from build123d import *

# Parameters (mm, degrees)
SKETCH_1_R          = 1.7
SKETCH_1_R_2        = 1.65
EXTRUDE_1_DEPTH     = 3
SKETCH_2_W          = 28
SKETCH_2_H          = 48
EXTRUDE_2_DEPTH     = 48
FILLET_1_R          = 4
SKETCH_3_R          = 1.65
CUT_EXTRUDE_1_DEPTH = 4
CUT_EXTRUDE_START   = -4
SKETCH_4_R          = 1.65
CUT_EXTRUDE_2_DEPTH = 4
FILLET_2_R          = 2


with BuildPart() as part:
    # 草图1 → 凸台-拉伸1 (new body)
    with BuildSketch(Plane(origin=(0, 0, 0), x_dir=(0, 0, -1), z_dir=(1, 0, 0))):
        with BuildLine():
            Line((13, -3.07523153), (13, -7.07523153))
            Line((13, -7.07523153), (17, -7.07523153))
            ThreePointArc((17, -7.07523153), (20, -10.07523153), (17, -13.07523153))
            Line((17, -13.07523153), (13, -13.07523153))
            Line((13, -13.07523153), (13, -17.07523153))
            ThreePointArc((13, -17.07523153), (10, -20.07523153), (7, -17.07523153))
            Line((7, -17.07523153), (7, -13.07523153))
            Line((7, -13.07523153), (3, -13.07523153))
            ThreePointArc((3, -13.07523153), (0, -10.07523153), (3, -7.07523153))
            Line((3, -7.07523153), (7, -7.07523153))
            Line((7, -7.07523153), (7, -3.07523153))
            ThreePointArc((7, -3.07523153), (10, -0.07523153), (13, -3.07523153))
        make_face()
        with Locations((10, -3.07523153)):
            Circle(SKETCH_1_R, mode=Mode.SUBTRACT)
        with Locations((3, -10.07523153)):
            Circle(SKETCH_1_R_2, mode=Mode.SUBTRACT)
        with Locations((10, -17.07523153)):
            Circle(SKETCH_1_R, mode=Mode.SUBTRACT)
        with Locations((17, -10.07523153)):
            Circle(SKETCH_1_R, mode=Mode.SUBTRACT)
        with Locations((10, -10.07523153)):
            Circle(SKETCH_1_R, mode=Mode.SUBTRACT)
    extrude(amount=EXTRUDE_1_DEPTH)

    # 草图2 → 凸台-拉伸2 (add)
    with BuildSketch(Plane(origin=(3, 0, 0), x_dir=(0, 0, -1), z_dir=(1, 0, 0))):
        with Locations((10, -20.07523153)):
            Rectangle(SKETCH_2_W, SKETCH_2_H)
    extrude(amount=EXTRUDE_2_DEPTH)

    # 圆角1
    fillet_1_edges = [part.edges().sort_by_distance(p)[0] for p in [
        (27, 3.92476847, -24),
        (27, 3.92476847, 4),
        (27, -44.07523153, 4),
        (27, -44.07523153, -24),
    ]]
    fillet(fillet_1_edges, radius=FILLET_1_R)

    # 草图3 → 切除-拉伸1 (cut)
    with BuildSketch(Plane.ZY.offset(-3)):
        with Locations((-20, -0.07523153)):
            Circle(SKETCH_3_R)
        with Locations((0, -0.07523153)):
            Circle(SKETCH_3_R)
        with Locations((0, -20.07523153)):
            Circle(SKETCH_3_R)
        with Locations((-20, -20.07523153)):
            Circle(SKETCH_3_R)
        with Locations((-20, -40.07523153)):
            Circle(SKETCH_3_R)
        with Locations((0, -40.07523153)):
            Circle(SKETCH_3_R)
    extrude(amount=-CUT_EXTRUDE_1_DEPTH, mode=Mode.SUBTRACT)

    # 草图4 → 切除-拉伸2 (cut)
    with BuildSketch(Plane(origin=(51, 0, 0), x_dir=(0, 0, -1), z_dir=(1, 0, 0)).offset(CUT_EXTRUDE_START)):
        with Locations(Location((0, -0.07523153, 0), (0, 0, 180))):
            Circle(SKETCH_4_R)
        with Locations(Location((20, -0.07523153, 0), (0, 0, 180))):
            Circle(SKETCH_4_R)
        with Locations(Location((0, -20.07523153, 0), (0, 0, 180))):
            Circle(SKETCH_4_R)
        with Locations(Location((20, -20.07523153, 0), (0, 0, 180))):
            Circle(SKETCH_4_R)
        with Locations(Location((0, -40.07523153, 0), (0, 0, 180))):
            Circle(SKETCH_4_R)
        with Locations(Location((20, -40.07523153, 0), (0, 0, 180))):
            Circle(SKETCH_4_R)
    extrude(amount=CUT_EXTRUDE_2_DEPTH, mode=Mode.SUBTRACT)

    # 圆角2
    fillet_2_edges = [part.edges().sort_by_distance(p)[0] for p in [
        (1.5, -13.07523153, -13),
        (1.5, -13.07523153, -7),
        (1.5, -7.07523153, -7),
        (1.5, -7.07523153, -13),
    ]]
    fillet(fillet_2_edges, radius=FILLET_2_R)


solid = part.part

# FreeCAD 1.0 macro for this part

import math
import FreeCAD as App
import Part
import Sketcher


def edges_at(feature, points):
    """Names of the edges that pass closest to the given points."""
    edges = feature.Shape.Edges
    near = lambda p: min(range(len(edges)), key=lambda i: edges[i].distToShape(Part.Vertex(*p))[0])
    return sorted({f"Edge{near(p) + 1}" for p in points})

doc = App.newDocument("Part")
body = doc.addObject("PartDesign::Body", "Body")

# Sketch on YZ plane
sketch1 = doc.addObject("Sketcher::SketchObject", "Sketch")
body.addObject(sketch1)
sketch1.AttachmentSupport = (doc.YZ_Plane, [""])
sketch1.MapMode = "FlatFace"
sketch1.addGeometry(Part.LineSegment(App.Vector(-7.1, -13, 0), App.Vector(-3.1, -13, 0)), False)
sketch1.addGeometry(Part.ArcOfCircle(Part.Circle(App.Vector(-3.1, -10, 0), App.Vector(0, 0, 1), 3), math.radians(-90), math.radians(90)), False)
sketch1.addGeometry(Part.LineSegment(App.Vector(-3.1, -7, 0), App.Vector(-7.1, -7, 0)), False)
sketch1.addGeometry(Part.LineSegment(App.Vector(-7.1, -7, 0), App.Vector(-7.1, -3, 0)), False)
sketch1.addGeometry(Part.ArcOfCircle(Part.Circle(App.Vector(-10.1, -3, 0), App.Vector(0, 0, 1), 3), math.radians(0), math.radians(180)), False)
sketch1.addGeometry(Part.LineSegment(App.Vector(-13.1, -3, 0), App.Vector(-13.1, -7, 0)), False)
sketch1.addGeometry(Part.LineSegment(App.Vector(-13.1, -7, 0), App.Vector(-17.1, -7, 0)), False)
sketch1.addGeometry(Part.ArcOfCircle(Part.Circle(App.Vector(-17.1, -10, 0), App.Vector(0, 0, 1), 3), math.radians(90), math.radians(270)), False)
sketch1.addGeometry(Part.LineSegment(App.Vector(-17.1, -13, 0), App.Vector(-13.1, -13, 0)), False)
sketch1.addGeometry(Part.LineSegment(App.Vector(-13.1, -13, 0), App.Vector(-13.1, -17, 0)), False)
sketch1.addGeometry(Part.ArcOfCircle(Part.Circle(App.Vector(-10.1, -17, 0), App.Vector(0, 0, 1), 3), math.radians(180), math.radians(360)), False)
sketch1.addGeometry(Part.LineSegment(App.Vector(-7.1, -17, 0), App.Vector(-7.1, -13, 0)), False)
sketch1.addGeometry(Part.Circle(App.Vector(-17.1, -10, 0), App.Vector(0, 0, 1), 1.7), False)
sketch1.addGeometry(Part.Circle(App.Vector(-10.1, -17, 0), App.Vector(0, 0, 1), 1.7), False)
sketch1.addGeometry(Part.Circle(App.Vector(-10.1, -10, 0), App.Vector(0, 0, 1), 1.7), False)
sketch1.addGeometry(Part.Circle(App.Vector(-10.1, -3, 0), App.Vector(0, 0, 1), 1.6), False)
sketch1.addGeometry(Part.Circle(App.Vector(-3.1, -10, 0), App.Vector(0, 0, 1), 1.7), False)
sketch1.addConstraint(Sketcher.Constraint("Tangent", 0, 2, 1, 1))
sketch1.addConstraint(Sketcher.Constraint("Tangent", 1, 2, 2, 1))
sketch1.addConstraint(Sketcher.Constraint("Coincident", 2, 2, 3, 1))
sketch1.addConstraint(Sketcher.Constraint("Tangent", 3, 2, 4, 1))
sketch1.addConstraint(Sketcher.Constraint("Tangent", 4, 2, 5, 1))
sketch1.addConstraint(Sketcher.Constraint("Coincident", 5, 2, 6, 1))
sketch1.addConstraint(Sketcher.Constraint("Tangent", 6, 2, 7, 1))
sketch1.addConstraint(Sketcher.Constraint("Tangent", 7, 2, 8, 1))
sketch1.addConstraint(Sketcher.Constraint("Coincident", 8, 2, 9, 1))
sketch1.addConstraint(Sketcher.Constraint("Tangent", 9, 2, 10, 1))
sketch1.addConstraint(Sketcher.Constraint("Tangent", 10, 2, 11, 1))
sketch1.addConstraint(Sketcher.Constraint("Coincident", 11, 2, 0, 1))
sketch1.addConstraint(Sketcher.Constraint("Horizontal", 0))
sketch1.addConstraint(Sketcher.Constraint("Horizontal", 2))
sketch1.addConstraint(Sketcher.Constraint("Vertical", 3))
sketch1.addConstraint(Sketcher.Constraint("Vertical", 5))
sketch1.addConstraint(Sketcher.Constraint("Horizontal", 6))
sketch1.addConstraint(Sketcher.Constraint("Horizontal", 8))
sketch1.addConstraint(Sketcher.Constraint("Vertical", 9))
sketch1.addConstraint(Sketcher.Constraint("Vertical", 11))
sketch1.addConstraint(Sketcher.Constraint("Coincident", 12, 3, 7, 3))
sketch1.addConstraint(Sketcher.Constraint("Coincident", 13, 3, 10, 3))
sketch1.addConstraint(Sketcher.Constraint("Coincident", 15, 3, 4, 3))
sketch1.addConstraint(Sketcher.Constraint("Coincident", 16, 3, 1, 3))
sketch1.addConstraint(Sketcher.Constraint("Equal", 1, 4))
sketch1.addConstraint(Sketcher.Constraint("Equal", 4, 7))
sketch1.addConstraint(Sketcher.Constraint("Equal", 7, 10))
sketch1.addConstraint(Sketcher.Constraint("Equal", 12, 13))
sketch1.addConstraint(Sketcher.Constraint("Equal", 13, 14))
sketch1.addConstraint(Sketcher.Constraint("Equal", 14, 16))
sketch1.addConstraint(Sketcher.Constraint("Horizontal", 1, 3, 7, 3))
sketch1.addConstraint(Sketcher.Constraint("Horizontal", 12, 3, 14, 3))
sketch1.addConstraint(Sketcher.Constraint("Vertical", 4, 3, 10, 3))
sketch1.addConstraint(Sketcher.Constraint("Vertical", 13, 3, 14, 3))
sketch1.addConstraint(Sketcher.Constraint("Equal", 2, 6))
sketch1.addConstraint(Sketcher.Constraint("Equal", 8, 3))
sketch1.addConstraint(Sketcher.Constraint("Equal", 5, 9))
sketch1.addConstraint(Sketcher.Constraint("Radius", 1, 3.0))
sketch1.addConstraint(Sketcher.Constraint("Diameter", 12, 3.4))
sketch1.addConstraint(Sketcher.Constraint("Diameter", 15, 3.3))
sketch1.addConstraint(Sketcher.Constraint("DistanceX", 0, 1, 0, 2, 4.0))
sketch1.addConstraint(Sketcher.Constraint("DistanceY", 1, 3, -1, 1, 10.0))
sketch1.addConstraint(Sketcher.Constraint("DistanceX", 1, 3, -1, 1, 3.075232))
pad1 = doc.addObject("PartDesign::Pad", "Pad")
body.addObject(pad1)
pad1.Profile = sketch1
pad1.Length = 3

# Sketch on YZ plane
sketch2 = doc.addObject("Sketcher::SketchObject", "Sketch001")
body.addObject(sketch2)
sketch2.AttachmentSupport = (doc.YZ_Plane, [""])
sketch2.MapMode = "FlatFace"
sketch2.AttachmentOffset = App.Placement(App.Vector(0, 0, 3), App.Rotation())
sketch2.addGeometry(Part.LineSegment(App.Vector(4, 4, 0), App.Vector(-44, 4, 0)), False)
sketch2.addGeometry(Part.LineSegment(App.Vector(-44, 4, 0), App.Vector(-44, -24, 0)), False)
sketch2.addGeometry(Part.LineSegment(App.Vector(-44, -24, 0), App.Vector(4, -24, 0)), False)
sketch2.addGeometry(Part.LineSegment(App.Vector(4, -24, 0), App.Vector(4, 4, 0)), False)
sketch2.addConstraint(Sketcher.Constraint("Coincident", 0, 2, 1, 1))
sketch2.addConstraint(Sketcher.Constraint("Coincident", 1, 2, 2, 1))
sketch2.addConstraint(Sketcher.Constraint("Coincident", 2, 2, 3, 1))
sketch2.addConstraint(Sketcher.Constraint("Coincident", 3, 2, 0, 1))
sketch2.addConstraint(Sketcher.Constraint("Horizontal", 0))
sketch2.addConstraint(Sketcher.Constraint("Vertical", 1))
sketch2.addConstraint(Sketcher.Constraint("Horizontal", 2))
sketch2.addConstraint(Sketcher.Constraint("Vertical", 3))
sketch2.addConstraint(Sketcher.Constraint("DistanceX", 0, 2, 0, 1, 48.0))
sketch2.addConstraint(Sketcher.Constraint("DistanceY", 1, 2, 1, 1, 28.0))
sketch2.addConstraint(Sketcher.Constraint("DistanceY", -1, 1, 0, 2, 4.0))
sketch2.addConstraint(Sketcher.Constraint("DistanceX", 0, 2, -1, 1, 44.075232))
pad2 = doc.addObject("PartDesign::Pad", "Pad001")
body.addObject(pad2)
pad2.Profile = sketch2
pad2.Length = 48
doc.recompute()

fillet = doc.addObject("PartDesign::Fillet", "Fillet")
body.addObject(fillet)
fillet.Base = (pad2, edges_at(pad2, [
    (27, 3.925, -24),
    (27, 3.925, 4),
    (27, -44.075, 4),
    (27, -44.075, -24),
]))
fillet.Radius = 4

# Sketch on YZ plane
sketch3 = doc.addObject("Sketcher::SketchObject", "Sketch002")
body.addObject(sketch3)
sketch3.AttachmentSupport = (doc.YZ_Plane, [""])
sketch3.MapMode = "FlatFace"
sketch3.AttachmentOffset = App.Placement(App.Vector(0, 0, 3), App.Rotation())
sketch3.addGeometry(Part.Circle(App.Vector(-0.1, -20, 0), App.Vector(0, 0, 1), 1.6), False)
sketch3.addGeometry(Part.Circle(App.Vector(-0.1, 0, 0), App.Vector(0, 0, 1), 1.6), False)
sketch3.addGeometry(Part.Circle(App.Vector(-20.1, 0, 0), App.Vector(0, 0, 1), 1.6), False)
sketch3.addGeometry(Part.Circle(App.Vector(-20.1, -20, 0), App.Vector(0, 0, 1), 1.6), False)
sketch3.addGeometry(Part.Circle(App.Vector(-40.1, -20, 0), App.Vector(0, 0, 1), 1.6), False)
sketch3.addGeometry(Part.Circle(App.Vector(-40.1, 0, 0), App.Vector(0, 0, 1), 1.6), False)
sketch3.addConstraint(Sketcher.Constraint("Equal", 0, 1))
sketch3.addConstraint(Sketcher.Constraint("Equal", 1, 2))
sketch3.addConstraint(Sketcher.Constraint("Equal", 2, 3))
sketch3.addConstraint(Sketcher.Constraint("Equal", 3, 4))
sketch3.addConstraint(Sketcher.Constraint("Equal", 4, 5))
sketch3.addConstraint(Sketcher.Constraint("PointOnObject", 1, 3, -1))
sketch3.addConstraint(Sketcher.Constraint("PointOnObject", 2, 3, -1))
sketch3.addConstraint(Sketcher.Constraint("PointOnObject", 5, 3, -1))
sketch3.addConstraint(Sketcher.Constraint("Horizontal", 0, 3, 3, 3))
sketch3.addConstraint(Sketcher.Constraint("Horizontal", 3, 3, 4, 3))
sketch3.addConstraint(Sketcher.Constraint("Vertical", 0, 3, 1, 3))
sketch3.addConstraint(Sketcher.Constraint("Vertical", 2, 3, 3, 3))
sketch3.addConstraint(Sketcher.Constraint("Vertical", 4, 3, 5, 3))
sketch3.addConstraint(Sketcher.Constraint("Diameter", 0, 3.3))
sketch3.addConstraint(Sketcher.Constraint("DistanceY", 0, 3, -1, 1, 20.0))
sketch3.addConstraint(Sketcher.Constraint("DistanceX", 2, 3, 1, 3, 20.0))
sketch3.addConstraint(Sketcher.Constraint("DistanceX", 4, 3, 3, 3, 20.0))
sketch3.addConstraint(Sketcher.Constraint("DistanceX", 0, 3, -1, 1, 0.075232))
pocket1 = doc.addObject("PartDesign::Pocket", "Pocket")
body.addObject(pocket1)
pocket1.Profile = sketch3
pocket1.Length = 4
pocket1.Reversed = True

# Sketch on YZ plane
sketch4 = doc.addObject("Sketcher::SketchObject", "Sketch003")
body.addObject(sketch4)
sketch4.AttachmentSupport = (doc.YZ_Plane, [""])
sketch4.MapMode = "FlatFace"
sketch4.AttachmentOffset = App.Placement(App.Vector(0, 0, 47), App.Rotation())
sketch4.addGeometry(Part.Circle(App.Vector(-0.1, 0, 0), App.Vector(0, 0, 1), 1.6), False)
sketch4.addGeometry(Part.Circle(App.Vector(-0.1, -20, 0), App.Vector(0, 0, 1), 1.6), False)
sketch4.addGeometry(Part.Circle(App.Vector(-20.1, 0, 0), App.Vector(0, 0, 1), 1.6), False)
sketch4.addGeometry(Part.Circle(App.Vector(-20.1, -20, 0), App.Vector(0, 0, 1), 1.6), False)
sketch4.addGeometry(Part.Circle(App.Vector(-40.1, 0, 0), App.Vector(0, 0, 1), 1.6), False)
sketch4.addGeometry(Part.Circle(App.Vector(-40.1, -20, 0), App.Vector(0, 0, 1), 1.6), False)
sketch4.addConstraint(Sketcher.Constraint("Equal", 0, 1))
sketch4.addConstraint(Sketcher.Constraint("Equal", 1, 2))
sketch4.addConstraint(Sketcher.Constraint("Equal", 2, 3))
sketch4.addConstraint(Sketcher.Constraint("Equal", 3, 4))
sketch4.addConstraint(Sketcher.Constraint("Equal", 4, 5))
sketch4.addConstraint(Sketcher.Constraint("PointOnObject", 0, 3, -1))
sketch4.addConstraint(Sketcher.Constraint("PointOnObject", 2, 3, -1))
sketch4.addConstraint(Sketcher.Constraint("PointOnObject", 4, 3, -1))
sketch4.addConstraint(Sketcher.Constraint("Horizontal", 1, 3, 3, 3))
sketch4.addConstraint(Sketcher.Constraint("Horizontal", 3, 3, 5, 3))
sketch4.addConstraint(Sketcher.Constraint("Vertical", 0, 3, 1, 3))
sketch4.addConstraint(Sketcher.Constraint("Vertical", 2, 3, 3, 3))
sketch4.addConstraint(Sketcher.Constraint("Vertical", 4, 3, 5, 3))
sketch4.addConstraint(Sketcher.Constraint("Diameter", 0, 3.3))
sketch4.addConstraint(Sketcher.Constraint("DistanceY", 1, 3, -1, 1, 20.0))
sketch4.addConstraint(Sketcher.Constraint("DistanceX", 2, 3, 0, 3, 20.0))
sketch4.addConstraint(Sketcher.Constraint("DistanceX", 4, 3, 2, 3, 20.0))
sketch4.addConstraint(Sketcher.Constraint("DistanceX", 0, 3, -1, 1, 0.075232))
pocket2 = doc.addObject("PartDesign::Pocket", "Pocket001")
body.addObject(pocket2)
pocket2.Profile = sketch4
pocket2.Length = 4
pocket2.Reversed = True
doc.recompute()

fillet2 = doc.addObject("PartDesign::Fillet", "Fillet001")
body.addObject(fillet2)
fillet2.Base = (pocket2, edges_at(pocket2, [
    (1.5, -13.075, -13),
    (1.5, -13.075, -7),
    (1.5, -7.075, -7),
    (1.5, -7.075, -13),
]))
fillet2.Radius = 2

doc.recompute()
